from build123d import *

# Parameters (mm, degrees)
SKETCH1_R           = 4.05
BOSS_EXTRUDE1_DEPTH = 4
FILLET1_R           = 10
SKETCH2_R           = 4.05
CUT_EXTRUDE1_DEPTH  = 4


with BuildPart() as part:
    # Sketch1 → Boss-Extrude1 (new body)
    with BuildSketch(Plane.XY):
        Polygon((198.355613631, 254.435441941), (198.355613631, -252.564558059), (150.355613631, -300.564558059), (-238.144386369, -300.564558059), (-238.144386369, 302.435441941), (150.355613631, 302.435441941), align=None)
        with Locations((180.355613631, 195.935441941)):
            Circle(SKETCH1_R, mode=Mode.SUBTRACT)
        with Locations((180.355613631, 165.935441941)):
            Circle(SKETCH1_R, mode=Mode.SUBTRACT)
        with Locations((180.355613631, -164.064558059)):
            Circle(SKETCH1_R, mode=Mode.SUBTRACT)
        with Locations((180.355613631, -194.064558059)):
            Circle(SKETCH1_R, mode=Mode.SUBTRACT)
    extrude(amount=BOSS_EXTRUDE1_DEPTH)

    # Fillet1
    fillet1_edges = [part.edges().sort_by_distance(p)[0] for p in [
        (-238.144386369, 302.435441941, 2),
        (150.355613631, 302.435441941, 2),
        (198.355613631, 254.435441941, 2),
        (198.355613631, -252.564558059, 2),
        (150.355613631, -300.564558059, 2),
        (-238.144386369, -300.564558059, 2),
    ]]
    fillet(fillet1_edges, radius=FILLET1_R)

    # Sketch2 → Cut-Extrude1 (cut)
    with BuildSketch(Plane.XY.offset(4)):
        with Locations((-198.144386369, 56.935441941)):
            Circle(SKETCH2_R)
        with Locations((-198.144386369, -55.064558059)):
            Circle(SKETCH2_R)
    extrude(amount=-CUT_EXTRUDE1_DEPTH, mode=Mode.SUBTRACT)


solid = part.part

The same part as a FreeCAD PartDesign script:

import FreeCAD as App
import Part
import Sketcher
Q = App.Units.Quantity


def edges_at(feature, points):
    """Names of the edges that pass closest to the given points."""
    edges = feature.Shape.Edges
    near = lambda p: min(range(len(edges)), key=lambda i: edges[i].distToShape(Part.Vertex(*p))[0])
    return sorted({f"Edge{near(p) + 1}" for p in points})

doc = App.newDocument("Part")
params = doc.addObject("Spreadsheet::Sheet", "Params")
for row, (alias, value) in enumerate([
    ("sketch1_diameter", "8.1 mm"),
    ("sketch1_height", "507 mm"),
    ("sketch1_height2", "603 mm"),
    ("sketch1_width", "388.5 mm"),
    ("pad1_length", "4 mm"),
    ("fillet_radius", "10 mm"),
    ("sketch2_diameter", "8.1 mm"),
    ("pocket1_length", "4 mm"),
], start=1):
    params.set(f"A{row}", alias)
    params.set(f"B{row}", "=" + value)
    params.setAlias(f"B{row}", alias)

body = doc.addObject("PartDesign::Body", "Body")

# Sketch on XY plane
sketch1 = body.newObject("Sketcher::SketchObject", "Sketch")
sketch1.AttachmentSupport = (doc.getObject("XY_Plane"), [""])
sketch1.MapMode = "FlatFace"
sketch1.addGeometry([
    Part.LineSegment(App.Vector(198.4, -252.6, 0), App.Vector(198.4, 254.4, 0)),  # 0
    Part.LineSegment(App.Vector(198.4, 254.4, 0), App.Vector(150.4, 302.4, 0)),  # 1
    Part.LineSegment(App.Vector(150.4, 302.4, 0), App.Vector(-238.1, 302.4, 0)),  # 2
    Part.LineSegment(App.Vector(-238.1, 302.4, 0), App.Vector(-238.1, -300.6, 0)),  # 3
    Part.LineSegment(App.Vector(-238.1, -300.6, 0), App.Vector(150.4, -300.6, 0)),  # 4
    Part.LineSegment(App.Vector(150.4, -300.6, 0), App.Vector(198.4, -252.6, 0)),  # 5
    Part.Circle(App.Vector(180.4, -194.1, 0), App.Vector(0, 0, 1), 4),  # 6
    Part.Circle(App.Vector(180.4, -164.1, 0), App.Vector(0, 0, 1), 4),  # 7
    Part.Circle(App.Vector(180.4, 165.9, 0), App.Vector(0, 0, 1), 4),  # 8
    Part.Circle(App.Vector(180.4, 195.9, 0), App.Vector(0, 0, 1), 4),  # 9
], False)
sketch1.addConstraint([
    Sketcher.Constraint("Coincident", 0, 2, 1, 1),
    Sketcher.Constraint("Coincident", 1, 2, 2, 1),
    Sketcher.Constraint("Coincident", 2, 2, 3, 1),
    Sketcher.Constraint("Coincident", 3, 2, 4, 1),
    Sketcher.Constraint("Coincident", 4, 2, 5, 1),
    Sketcher.Constraint("Coincident", 5, 2, 0, 1),
    Sketcher.Constraint("Vertical", 0),
    Sketcher.Constraint("Horizontal", 2),
    Sketcher.Constraint("Vertical", 3),
    Sketcher.Constraint("Horizontal", 4),
    Sketcher.Constraint("Equal", 6, 7),
    Sketcher.Constraint("Equal", 7, 8),
    Sketcher.Constraint("Equal", 8, 9),
    Sketcher.Constraint("Perpendicular", 1, 5),
    Sketcher.Constraint("Vertical", 6, 3, 7, 3),
    Sketcher.Constraint("Vertical", 7, 3, 8, 3),
    Sketcher.Constraint("Vertical", 8, 3, 9, 3),
    Sketcher.Constraint("Vertical", 1, 2, 4, 2),
    Sketcher.Constraint("Equal", 1, 5),
    Sketcher.Constraint("Diameter", 6, Q("8.1 mm")),
    Sketcher.Constraint("DistanceY", 0, 1, 0, 2, Q("507 mm")),
    Sketcher.Constraint("DistanceY", 3, 2, 3, 1, Q("603 mm")),
    Sketcher.Constraint("DistanceX", 2, 2, 2, 1, Q("388.5 mm")),
    Sketcher.Constraint("DistanceY", 6, 3, 7, 3, Q("30 mm")),
    Sketcher.Constraint("DistanceY", 7, 3, 8, 3, Q("330 mm")),
    Sketcher.Constraint("DistanceY", 8, 3, 9, 3, Q("30 mm")),
    Sketcher.Constraint("DistanceX", 9, 3, 0, 2, Q("18 mm")),
    Sketcher.Constraint("DistanceY", 9, 3, 0, 2, Q("58.5 mm")),
    Sketcher.Constraint("DistanceY", 6, 3, -1, 1, Q("194.064558 mm")),
    Sketcher.Constraint("DistanceX", -1, 1, 6, 3, Q("180.355614 mm")),
])
sketch1.setExpression("Constraints[19]", "Params.sketch1_diameter")
sketch1.setExpression("Constraints[20]", "Params.sketch1_height")
sketch1.setExpression("Constraints[21]", "Params.sketch1_height2")
sketch1.setExpression("Constraints[22]", "Params.sketch1_width")
pad1 = body.newObject("PartDesign::Pad", "Pad")
pad1.Profile = sketch1
pad1.setExpression("Length", "Params.pad1_length")
doc.recompute()

fillet = body.newObject("PartDesign::Fillet", "Fillet")
fillet.Base = (pad1, edges_at(pad1, [
    (-238.144, 302.435, 2),
    (150.356, 302.435, 2),
    (198.356, 254.435, 2),
    (198.356, -252.565, 2),
    (150.356, -300.565, 2),
    (-238.144, -300.565, 2),
]))
fillet.setExpression("Radius", "Params.fillet_radius")

# Sketch on XY plane
sketch2 = body.newObject("Sketcher::SketchObject", "Sketch001")
sketch2.AttachmentSupport = (doc.getObject("XY_Plane"), [""])
sketch2.MapMode = "FlatFace"
sketch2.AttachmentOffset = App.Placement(App.Vector(0, 0, 4), App.Rotation())
sketch2.addGeometry([
    Part.Circle(App.Vector(-198.1, 56.9, 0), App.Vector(0, 0, 1), 4),
    Part.Circle(App.Vector(-198.1, -55.1, 0), App.Vector(0, 0, 1), 4),
], False)
sketch2.addConstraint([
    Sketcher.Constraint("Equal", 0, 1),
    Sketcher.Constraint("Vertical", 0, 3, 1, 3),
    Sketcher.Constraint("Diameter", 0, Q("8.1 mm")),
    Sketcher.Constraint("DistanceY", 1, 3, 0, 3, Q("112 mm")),
    Sketcher.Constraint("DistanceY", -1, 1, 0, 3, Q("56.935442 mm")),
    Sketcher.Constraint("DistanceX", 0, 3, -1, 1, Q("198.144386 mm")),
])
sketch2.setExpression("Constraints[2]", "Params.sketch2_diameter")
pocket1 = body.newObject("PartDesign::Pocket", "Pocket")
pocket1.Profile = sketch2
pocket1.setExpression("Length", "Params.pocket1_length")

doc.recompute()
